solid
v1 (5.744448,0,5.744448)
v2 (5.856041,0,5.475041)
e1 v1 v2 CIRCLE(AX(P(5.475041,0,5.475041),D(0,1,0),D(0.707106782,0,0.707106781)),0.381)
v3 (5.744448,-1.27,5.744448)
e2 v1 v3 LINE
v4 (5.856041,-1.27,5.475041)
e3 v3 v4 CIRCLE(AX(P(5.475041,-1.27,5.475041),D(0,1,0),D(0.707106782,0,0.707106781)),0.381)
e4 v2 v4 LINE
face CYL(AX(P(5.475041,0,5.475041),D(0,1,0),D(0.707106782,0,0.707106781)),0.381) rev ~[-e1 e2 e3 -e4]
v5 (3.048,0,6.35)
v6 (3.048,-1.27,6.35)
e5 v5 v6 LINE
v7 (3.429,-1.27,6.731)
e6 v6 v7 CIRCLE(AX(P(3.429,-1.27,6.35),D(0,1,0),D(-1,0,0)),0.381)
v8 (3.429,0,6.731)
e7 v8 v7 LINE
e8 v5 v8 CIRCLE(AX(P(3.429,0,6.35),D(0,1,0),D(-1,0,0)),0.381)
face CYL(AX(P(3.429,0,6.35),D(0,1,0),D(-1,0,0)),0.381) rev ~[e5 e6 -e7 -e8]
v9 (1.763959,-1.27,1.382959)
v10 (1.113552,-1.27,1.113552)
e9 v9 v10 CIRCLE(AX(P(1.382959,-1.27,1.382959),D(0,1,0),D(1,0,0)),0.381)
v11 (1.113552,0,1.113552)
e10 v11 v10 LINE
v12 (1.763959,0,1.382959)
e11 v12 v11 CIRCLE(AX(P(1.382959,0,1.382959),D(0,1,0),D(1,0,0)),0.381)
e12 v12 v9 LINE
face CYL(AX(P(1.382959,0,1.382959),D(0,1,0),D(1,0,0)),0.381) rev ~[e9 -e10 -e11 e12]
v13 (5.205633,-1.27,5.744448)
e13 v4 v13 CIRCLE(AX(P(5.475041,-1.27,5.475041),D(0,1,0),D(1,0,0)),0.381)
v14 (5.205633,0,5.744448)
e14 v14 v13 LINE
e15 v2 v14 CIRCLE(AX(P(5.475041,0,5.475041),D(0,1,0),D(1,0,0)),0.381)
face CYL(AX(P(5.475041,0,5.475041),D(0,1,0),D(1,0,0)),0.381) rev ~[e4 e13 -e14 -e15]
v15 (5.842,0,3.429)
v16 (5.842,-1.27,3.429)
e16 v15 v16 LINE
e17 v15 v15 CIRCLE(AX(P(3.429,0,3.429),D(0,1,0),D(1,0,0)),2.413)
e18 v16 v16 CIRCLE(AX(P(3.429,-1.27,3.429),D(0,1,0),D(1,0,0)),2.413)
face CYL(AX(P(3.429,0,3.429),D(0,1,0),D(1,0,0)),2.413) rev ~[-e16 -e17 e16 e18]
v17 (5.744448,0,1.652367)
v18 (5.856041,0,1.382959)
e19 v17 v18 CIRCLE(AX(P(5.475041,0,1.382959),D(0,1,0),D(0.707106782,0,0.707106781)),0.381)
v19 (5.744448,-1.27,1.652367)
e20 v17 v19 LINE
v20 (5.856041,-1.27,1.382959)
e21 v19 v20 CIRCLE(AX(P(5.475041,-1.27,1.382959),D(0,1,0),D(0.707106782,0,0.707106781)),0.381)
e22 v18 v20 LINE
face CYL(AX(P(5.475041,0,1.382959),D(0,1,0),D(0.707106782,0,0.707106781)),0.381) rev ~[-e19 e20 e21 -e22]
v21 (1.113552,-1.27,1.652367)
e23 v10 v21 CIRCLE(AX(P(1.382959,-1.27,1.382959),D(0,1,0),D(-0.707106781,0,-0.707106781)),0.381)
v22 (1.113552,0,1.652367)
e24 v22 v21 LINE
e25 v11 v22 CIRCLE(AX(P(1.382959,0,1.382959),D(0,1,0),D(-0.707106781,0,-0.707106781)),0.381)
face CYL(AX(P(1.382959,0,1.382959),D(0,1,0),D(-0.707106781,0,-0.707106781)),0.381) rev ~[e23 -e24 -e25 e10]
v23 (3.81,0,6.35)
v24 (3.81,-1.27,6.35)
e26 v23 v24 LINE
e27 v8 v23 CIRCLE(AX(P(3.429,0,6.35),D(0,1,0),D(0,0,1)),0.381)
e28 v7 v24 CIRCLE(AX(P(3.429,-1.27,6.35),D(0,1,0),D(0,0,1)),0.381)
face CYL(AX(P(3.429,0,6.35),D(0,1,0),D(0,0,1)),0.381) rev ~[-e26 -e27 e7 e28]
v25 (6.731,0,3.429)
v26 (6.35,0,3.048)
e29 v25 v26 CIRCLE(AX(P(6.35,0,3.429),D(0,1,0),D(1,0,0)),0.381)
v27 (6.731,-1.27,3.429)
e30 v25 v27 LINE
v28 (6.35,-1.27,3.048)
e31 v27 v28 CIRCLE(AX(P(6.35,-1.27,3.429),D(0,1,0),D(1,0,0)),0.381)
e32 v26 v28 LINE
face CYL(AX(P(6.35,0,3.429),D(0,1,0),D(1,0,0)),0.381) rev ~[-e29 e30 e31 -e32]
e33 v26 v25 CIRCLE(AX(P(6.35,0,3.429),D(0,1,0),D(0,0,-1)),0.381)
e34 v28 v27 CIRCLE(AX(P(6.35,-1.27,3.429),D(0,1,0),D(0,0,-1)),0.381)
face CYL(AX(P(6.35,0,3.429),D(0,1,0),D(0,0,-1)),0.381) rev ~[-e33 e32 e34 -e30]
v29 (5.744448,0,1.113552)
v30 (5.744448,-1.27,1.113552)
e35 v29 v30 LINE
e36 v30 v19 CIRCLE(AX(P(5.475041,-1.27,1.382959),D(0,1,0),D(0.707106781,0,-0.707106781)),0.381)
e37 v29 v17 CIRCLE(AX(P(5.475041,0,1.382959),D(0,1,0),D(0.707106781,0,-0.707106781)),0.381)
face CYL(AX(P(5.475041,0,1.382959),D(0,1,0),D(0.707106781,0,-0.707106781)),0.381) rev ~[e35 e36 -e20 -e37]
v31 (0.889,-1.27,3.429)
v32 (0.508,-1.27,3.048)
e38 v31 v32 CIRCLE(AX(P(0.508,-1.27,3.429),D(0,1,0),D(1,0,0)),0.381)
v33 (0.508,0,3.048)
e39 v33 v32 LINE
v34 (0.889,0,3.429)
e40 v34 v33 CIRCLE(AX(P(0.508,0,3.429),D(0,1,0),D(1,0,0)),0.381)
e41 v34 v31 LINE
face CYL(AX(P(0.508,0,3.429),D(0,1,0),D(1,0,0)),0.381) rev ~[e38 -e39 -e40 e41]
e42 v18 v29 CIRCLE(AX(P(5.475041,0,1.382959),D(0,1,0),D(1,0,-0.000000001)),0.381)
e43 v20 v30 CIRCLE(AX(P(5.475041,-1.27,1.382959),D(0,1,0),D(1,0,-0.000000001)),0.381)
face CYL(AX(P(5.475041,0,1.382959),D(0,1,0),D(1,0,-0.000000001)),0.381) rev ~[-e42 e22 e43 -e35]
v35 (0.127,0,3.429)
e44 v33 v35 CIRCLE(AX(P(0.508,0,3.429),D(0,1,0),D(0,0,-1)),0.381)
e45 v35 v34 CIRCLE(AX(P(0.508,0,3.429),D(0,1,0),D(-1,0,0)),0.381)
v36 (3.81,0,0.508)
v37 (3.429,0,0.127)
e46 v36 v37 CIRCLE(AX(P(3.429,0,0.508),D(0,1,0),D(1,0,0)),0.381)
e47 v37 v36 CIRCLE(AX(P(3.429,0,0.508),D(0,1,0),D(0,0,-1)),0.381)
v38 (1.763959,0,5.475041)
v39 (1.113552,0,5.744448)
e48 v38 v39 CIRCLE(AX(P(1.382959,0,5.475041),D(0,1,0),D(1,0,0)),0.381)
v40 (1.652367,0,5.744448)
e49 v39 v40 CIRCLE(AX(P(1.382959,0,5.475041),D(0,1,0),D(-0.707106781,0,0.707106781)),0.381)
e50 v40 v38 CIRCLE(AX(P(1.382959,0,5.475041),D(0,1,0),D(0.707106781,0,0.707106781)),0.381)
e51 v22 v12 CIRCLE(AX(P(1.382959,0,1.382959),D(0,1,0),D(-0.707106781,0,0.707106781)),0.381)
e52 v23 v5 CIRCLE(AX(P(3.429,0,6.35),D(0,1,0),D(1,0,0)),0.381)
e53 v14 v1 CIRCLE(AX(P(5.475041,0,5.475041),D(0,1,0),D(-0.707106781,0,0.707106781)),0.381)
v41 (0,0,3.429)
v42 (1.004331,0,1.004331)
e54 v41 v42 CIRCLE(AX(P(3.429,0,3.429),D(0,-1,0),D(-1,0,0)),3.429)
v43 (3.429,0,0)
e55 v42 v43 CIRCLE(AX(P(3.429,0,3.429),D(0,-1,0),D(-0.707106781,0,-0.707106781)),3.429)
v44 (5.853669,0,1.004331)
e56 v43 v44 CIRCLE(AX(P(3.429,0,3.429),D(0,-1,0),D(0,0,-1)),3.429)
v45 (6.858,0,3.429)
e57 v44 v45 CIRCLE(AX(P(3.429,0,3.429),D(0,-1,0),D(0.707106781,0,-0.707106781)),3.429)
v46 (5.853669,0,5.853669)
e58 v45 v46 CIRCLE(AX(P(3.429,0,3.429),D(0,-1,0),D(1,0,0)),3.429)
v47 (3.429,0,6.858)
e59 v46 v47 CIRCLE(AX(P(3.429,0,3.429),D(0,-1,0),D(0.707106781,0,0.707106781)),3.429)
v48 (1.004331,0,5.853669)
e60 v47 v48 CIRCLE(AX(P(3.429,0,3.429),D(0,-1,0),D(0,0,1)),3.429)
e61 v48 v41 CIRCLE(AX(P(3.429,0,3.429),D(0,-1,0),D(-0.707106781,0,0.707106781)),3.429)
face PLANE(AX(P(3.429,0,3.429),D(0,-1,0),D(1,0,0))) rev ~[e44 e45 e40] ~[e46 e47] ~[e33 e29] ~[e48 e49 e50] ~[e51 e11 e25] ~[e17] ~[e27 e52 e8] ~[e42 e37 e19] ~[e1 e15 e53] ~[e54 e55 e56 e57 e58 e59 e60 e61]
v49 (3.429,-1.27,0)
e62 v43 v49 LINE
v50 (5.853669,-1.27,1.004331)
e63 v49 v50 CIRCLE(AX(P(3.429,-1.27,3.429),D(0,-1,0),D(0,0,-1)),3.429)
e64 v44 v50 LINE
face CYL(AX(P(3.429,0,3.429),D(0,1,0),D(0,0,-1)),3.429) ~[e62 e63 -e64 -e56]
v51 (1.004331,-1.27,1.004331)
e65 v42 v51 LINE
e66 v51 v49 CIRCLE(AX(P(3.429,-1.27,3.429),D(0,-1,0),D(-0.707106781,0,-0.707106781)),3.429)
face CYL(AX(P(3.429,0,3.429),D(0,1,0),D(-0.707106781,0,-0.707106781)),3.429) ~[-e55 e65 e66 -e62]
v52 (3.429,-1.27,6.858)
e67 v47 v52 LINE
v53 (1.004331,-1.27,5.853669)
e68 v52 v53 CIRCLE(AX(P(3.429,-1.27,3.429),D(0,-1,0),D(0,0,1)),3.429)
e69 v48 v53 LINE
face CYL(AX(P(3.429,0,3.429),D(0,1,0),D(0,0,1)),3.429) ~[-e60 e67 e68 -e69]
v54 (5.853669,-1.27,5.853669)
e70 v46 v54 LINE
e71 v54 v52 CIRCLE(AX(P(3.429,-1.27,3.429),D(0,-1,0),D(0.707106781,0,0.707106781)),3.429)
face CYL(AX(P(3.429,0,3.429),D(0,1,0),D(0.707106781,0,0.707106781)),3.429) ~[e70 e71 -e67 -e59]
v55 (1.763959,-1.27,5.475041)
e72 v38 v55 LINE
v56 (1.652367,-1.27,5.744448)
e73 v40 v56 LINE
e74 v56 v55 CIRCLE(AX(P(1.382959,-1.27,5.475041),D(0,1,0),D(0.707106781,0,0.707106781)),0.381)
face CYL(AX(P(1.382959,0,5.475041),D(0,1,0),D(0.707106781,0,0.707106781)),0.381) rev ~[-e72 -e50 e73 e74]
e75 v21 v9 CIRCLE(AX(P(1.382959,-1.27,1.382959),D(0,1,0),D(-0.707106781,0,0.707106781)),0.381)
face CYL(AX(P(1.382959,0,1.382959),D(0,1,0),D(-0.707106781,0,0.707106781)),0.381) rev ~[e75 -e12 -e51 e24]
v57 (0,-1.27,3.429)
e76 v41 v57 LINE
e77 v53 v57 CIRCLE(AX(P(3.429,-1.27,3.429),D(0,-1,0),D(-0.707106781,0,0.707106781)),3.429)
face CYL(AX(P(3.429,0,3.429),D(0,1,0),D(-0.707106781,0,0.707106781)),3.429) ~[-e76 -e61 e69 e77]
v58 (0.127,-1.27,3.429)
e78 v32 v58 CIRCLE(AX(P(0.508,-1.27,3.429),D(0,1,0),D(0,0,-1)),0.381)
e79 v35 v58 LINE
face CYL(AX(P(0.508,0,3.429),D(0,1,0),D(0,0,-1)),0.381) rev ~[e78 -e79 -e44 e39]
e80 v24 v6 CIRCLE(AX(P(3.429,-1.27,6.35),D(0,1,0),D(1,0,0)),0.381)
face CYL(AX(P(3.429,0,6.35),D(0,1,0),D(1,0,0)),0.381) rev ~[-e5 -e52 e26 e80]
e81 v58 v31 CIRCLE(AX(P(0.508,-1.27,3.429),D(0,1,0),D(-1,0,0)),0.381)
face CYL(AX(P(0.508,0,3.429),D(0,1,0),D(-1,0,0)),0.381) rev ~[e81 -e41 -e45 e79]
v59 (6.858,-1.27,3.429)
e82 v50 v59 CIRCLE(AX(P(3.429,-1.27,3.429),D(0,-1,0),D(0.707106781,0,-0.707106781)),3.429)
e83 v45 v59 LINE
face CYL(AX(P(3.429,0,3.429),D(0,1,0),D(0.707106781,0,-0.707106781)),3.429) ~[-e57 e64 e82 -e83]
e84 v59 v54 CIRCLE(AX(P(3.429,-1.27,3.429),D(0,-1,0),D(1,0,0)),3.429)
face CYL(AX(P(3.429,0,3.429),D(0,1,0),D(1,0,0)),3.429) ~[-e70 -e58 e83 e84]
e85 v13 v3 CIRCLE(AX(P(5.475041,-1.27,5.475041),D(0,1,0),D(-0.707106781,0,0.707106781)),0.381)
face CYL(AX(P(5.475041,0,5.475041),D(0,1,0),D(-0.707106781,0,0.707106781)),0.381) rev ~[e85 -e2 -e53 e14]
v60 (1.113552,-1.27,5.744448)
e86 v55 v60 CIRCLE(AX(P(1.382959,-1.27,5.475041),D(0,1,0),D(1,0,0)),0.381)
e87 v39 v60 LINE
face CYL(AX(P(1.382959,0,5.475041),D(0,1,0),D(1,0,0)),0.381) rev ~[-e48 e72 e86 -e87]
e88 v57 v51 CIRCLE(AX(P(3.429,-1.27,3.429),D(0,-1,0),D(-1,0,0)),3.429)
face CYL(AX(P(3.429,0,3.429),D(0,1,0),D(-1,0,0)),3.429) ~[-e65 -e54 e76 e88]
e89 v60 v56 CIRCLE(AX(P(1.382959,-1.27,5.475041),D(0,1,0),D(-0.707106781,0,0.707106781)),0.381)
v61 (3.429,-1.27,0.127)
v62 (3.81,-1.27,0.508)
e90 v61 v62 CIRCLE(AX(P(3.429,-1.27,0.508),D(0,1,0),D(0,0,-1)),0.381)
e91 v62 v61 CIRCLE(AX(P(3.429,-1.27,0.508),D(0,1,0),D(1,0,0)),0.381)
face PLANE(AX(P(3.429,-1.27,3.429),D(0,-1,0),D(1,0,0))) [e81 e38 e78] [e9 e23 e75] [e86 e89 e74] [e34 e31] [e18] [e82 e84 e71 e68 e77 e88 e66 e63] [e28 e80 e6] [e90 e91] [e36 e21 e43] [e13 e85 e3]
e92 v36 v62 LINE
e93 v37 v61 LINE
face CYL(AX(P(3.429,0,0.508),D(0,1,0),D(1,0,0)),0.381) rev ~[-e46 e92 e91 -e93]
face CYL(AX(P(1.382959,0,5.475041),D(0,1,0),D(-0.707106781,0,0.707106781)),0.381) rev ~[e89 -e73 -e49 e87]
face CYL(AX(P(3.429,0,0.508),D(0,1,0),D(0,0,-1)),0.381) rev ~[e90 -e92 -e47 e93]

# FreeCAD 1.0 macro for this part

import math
import FreeCAD as App
import Part
import Sketcher
from FreeCAD import Vector
Q = App.Units.Quantity

doc = App.newDocument("Part")
body = doc.addObject("PartDesign::Body", "Body")

sketch1 = body.newObject("Sketcher::SketchObject", "Sketch")
sketch1.AttachmentSupport = (doc.getObject("XZ_Plane"), [""])
sketch1.MapMode = "FlatFace"
sketch1.addGeometry([
    Part.ArcOfCircle(Part.Circle(Vector(3.43, 3.43, 0), Vector(0, 0, 1), 3.43), math.radians(-45), math.radians(0)),
    Part.ArcOfCircle(Part.Circle(Vector(3.43, 3.43, 0), Vector(0, 0, 1), 3.43), math.radians(0), math.radians(45)),
    Part.ArcOfCircle(Part.Circle(Vector(3.43, 3.43, 0), Vector(0, 0, 1), 3.43), math.radians(45), math.radians(90)),
    Part.ArcOfCircle(Part.Circle(Vector(3.43, 3.43, 0), Vector(0, 0, 1), 3.43), math.radians(90), math.radians(135)),
    Part.ArcOfCircle(Part.Circle(Vector(3.43, 3.43, 0), Vector(0, 0, 1), 3.43), math.radians(135), math.radians(180)),
    Part.ArcOfCircle(Part.Circle(Vector(3.43, 3.43, 0), Vector(0, 0, 1), 3.43), math.radians(180), math.radians(225)),
    Part.ArcOfCircle(Part.Circle(Vector(3.43, 3.43, 0), Vector(0, 0, 1), 3.43), math.radians(-135), math.radians(-90)),
    Part.ArcOfCircle(Part.Circle(Vector(3.43, 3.43, 0), Vector(0, 0, 1), 3.43), math.radians(-90), math.radians(-45)),
    Part.ArcOfCircle(Part.Circle(Vector(1.38, 1.38, 0), Vector(0, 0, 1), 0.38), math.radians(0), math.radians(135)),
    Part.ArcOfCircle(Part.Circle(Vector(1.38, 1.38, 0), Vector(0, 0, 1), 0.38), math.radians(-135), math.radians(0)),
    Part.ArcOfCircle(Part.Circle(Vector(1.38, 1.38, 0), Vector(0, 0, 1), 0.38), math.radians(135), math.radians(225)),
    Part.ArcOfCircle(Part.Circle(Vector(3.43, 0.51, 0), Vector(0, 0, 1), 0.38), math.radians(0), math.radians(270)),
    Part.ArcOfCircle(Part.Circle(Vector(3.43, 0.51, 0), Vector(0, 0, 1), 0.38), math.radians(-90), math.radians(0)),
    Part.ArcOfCircle(Part.Circle(Vector(5.48, 1.38, 0), Vector(0, 0, 1), 0.38), math.radians(0), math.radians(45)),
    Part.ArcOfCircle(Part.Circle(Vector(5.48, 1.38, 0), Vector(0, 0, 1), 0.38), math.radians(-45), math.radians(0)),
    Part.ArcOfCircle(Part.Circle(Vector(5.48, 1.38, 0), Vector(0, 0, 1), 0.38), math.radians(45), math.radians(315)),
    Part.ArcOfCircle(Part.Circle(Vector(6.35, 3.43, 0), Vector(0, 0, 1), 0.38), math.radians(-90), math.radians(0)),
    Part.ArcOfCircle(Part.Circle(Vector(6.35, 3.43, 0), Vector(0, 0, 1), 0.38), math.radians(0), math.radians(270)),
    Part.ArcOfCircle(Part.Circle(Vector(0.51, 3.43, 0), Vector(0, 0, 1), 0.38), math.radians(-90), math.radians(0)),
    Part.ArcOfCircle(Part.Circle(Vector(0.51, 3.43, 0), Vector(0, 0, 1), 0.38), math.radians(180), math.radians(270)),
    Part.ArcOfCircle(Part.Circle(Vector(0.51, 3.43, 0), Vector(0, 0, 1), 0.38), math.radians(0), math.radians(180)),
    Part.ArcOfCircle(Part.Circle(Vector(1.38, 5.48, 0), Vector(0, 0, 1), 0.38), math.radians(0), math.radians(45)),
    Part.ArcOfCircle(Part.Circle(Vector(1.38, 5.48, 0), Vector(0, 0, 1), 0.38), math.radians(135), math.radians(360)),
    Part.ArcOfCircle(Part.Circle(Vector(1.38, 5.48, 0), Vector(0, 0, 1), 0.38), math.radians(45), math.radians(135)),
    Part.Circle(Vector(3.43, 3.43, 0), Vector(0, 0, 1), 2.41),
    Part.ArcOfCircle(Part.Circle(Vector(3.43, 6.35, 0), Vector(0, 0, 1), 0.38), math.radians(180), math.radians(360)),
    Part.ArcOfCircle(Part.Circle(Vector(3.43, 6.35, 0), Vector(0, 0, 1), 0.38), math.radians(90), math.radians(180)),
    Part.ArcOfCircle(Part.Circle(Vector(3.43, 6.35, 0), Vector(0, 0, 1), 0.38), math.radians(0), math.radians(90)),
    Part.ArcOfCircle(Part.Circle(Vector(5.48, 5.48, 0), Vector(0, 0, 1), 0.38), math.radians(135), math.radians(360)),
    Part.ArcOfCircle(Part.Circle(Vector(5.48, 5.48, 0), Vector(0, 0, 1), 0.38), math.radians(45), math.radians(135)),
    Part.ArcOfCircle(Part.Circle(Vector(5.48, 5.48, 0), Vector(0, 0, 1), 0.38), math.radians(0), math.radians(45)),
], False)
sketch1.addConstraint([
    Sketcher.Constraint("Tangent", 0, 2, 1, 1),
    Sketcher.Constraint("Tangent", 1, 2, 2, 1),
    Sketcher.Constraint("Tangent", 2, 2, 3, 1),
    Sketcher.Constraint("Tangent", 3, 2, 4, 1),
    Sketcher.Constraint("Tangent", 4, 2, 5, 1),
    Sketcher.Constraint("Tangent", 5, 2, 6, 1),
    Sketcher.Constraint("Tangent", 6, 2, 7, 1),
    Sketcher.Constraint("Tangent", 7, 2, 0, 1),
    Sketcher.Constraint("Tangent", 8, 1, 9, 2),
    Sketcher.Constraint("Tangent", 9, 1, 10, 2),
    Sketcher.Constraint("Tangent", 10, 1, 8, 2),
    Sketcher.Constraint("Tangent", 11, 1, 12, 2),
    Sketcher.Constraint("Coincident", 12, 1, 11, 2),
    Sketcher.Constraint("Tangent", 13, 1, 14, 2),
    Sketcher.Constraint("Tangent", 14, 1, 15, 2),
    Sketcher.Constraint("Tangent", 15, 1, 13, 2),
    Sketcher.Constraint("Tangent", 16, 1, 17, 2),
    Sketcher.Constraint("Coincident", 17, 1, 16, 2),
    Sketcher.Constraint("Tangent", 18, 1, 19, 2),
    Sketcher.Constraint("Tangent", 19, 1, 20, 2),
    Sketcher.Constraint("Tangent", 20, 1, 18, 2),
    Sketcher.Constraint("Tangent", 21, 1, 22, 2),
    Sketcher.Constraint("Tangent", 22, 1, 23, 2),
    Sketcher.Constraint("Tangent", 23, 1, 21, 2),
    Sketcher.Constraint("Tangent", 25, 1, 26, 2),
    Sketcher.Constraint("Tangent", 26, 1, 27, 2),
    Sketcher.Constraint("Tangent", 27, 1, 25, 2),
    Sketcher.Constraint("Tangent", 28, 1, 29, 2),
    Sketcher.Constraint("Tangent", 29, 1, 30, 2),
    Sketcher.Constraint("Tangent", 30, 1, 28, 2),
    Sketcher.Constraint("Coincident", 2, 3, 0, 3),
    Sketcher.Constraint("Coincident", 4, 3, 0, 3),
    Sketcher.Constraint("Coincident", 24, 3, 0, 3),
    Sketcher.Constraint("Equal", 4, 5),
    Sketcher.Constraint("Equal", 10, 11),
    Sketcher.Constraint("Equal", 12, 13),
    Sketcher.Constraint("Equal", 15, 16),
    Sketcher.Constraint("Equal", 17, 18),
    Sketcher.Constraint("Equal", 20, 21),
    Sketcher.Constraint("Equal", 23, 25),
    Sketcher.Constraint("Equal", 27, 28),
    Sketcher.Constraint("PointOnObject", 4, 2, -2),
    Sketcher.Constraint("PointOnObject", 6, 2, -1),
    Sketcher.Constraint("Horizontal", 10, 3, 13, 3),
    Sketcher.Constraint("Horizontal", 7, 3, 16, 3),
    Sketcher.Constraint("Horizontal", 17, 3, 18, 3),
    Sketcher.Constraint("Horizontal", 23, 3, 28, 3),
    Sketcher.Constraint("Horizontal", 24, 3, 0, 2),
    Sketcher.Constraint("Horizontal", 1, 2, 3, 2),
    Sketcher.Constraint("Horizontal", 0, 2, 4, 2),
    Sketcher.Constraint("Horizontal", 5, 2, 7, 2),
    Sketcher.Constraint("Horizontal", 15, 3, 8, 1),
    Sketcher.Constraint("Horizontal", 12, 3, 11, 1),
    Sketcher.Constraint("Horizontal", 8, 1, 13, 1),
    Sketcher.Constraint("Horizontal", 9, 1, 14, 1),
    Sketcher.Constraint("Horizontal", 10, 1, 15, 1),
    Sketcher.Constraint("Horizontal", 4, 2, 17, 1),
    Sketcher.Constraint("Horizontal", 17, 1, 19, 1),
    Sketcher.Constraint("Horizontal", 19, 1, 20, 1),
    Sketcher.Constraint("Horizontal", 30, 3, 21, 1),
    Sketcher.Constraint("Horizontal", 22, 1, 23, 1),
    Sketcher.Constraint("Horizontal", 27, 3, 25, 1),
    Sketcher.Constraint("Horizontal", 25, 1, 27, 1),
    Sketcher.Constraint("Horizontal", 23, 1, 28, 1),
    Sketcher.Constraint("Horizontal", 28, 1, 29, 1),
    Sketcher.Constraint("Horizontal", 21, 1, 30, 1),
    Sketcher.Constraint("Vertical", 7, 3, 11, 3),
    Sketcher.Constraint("Vertical", 10, 3, 21, 3),
    Sketcher.Constraint("Vertical", 24, 3, 25, 3),
    Sketcher.Constraint("Vertical", 15, 3, 28, 3),
    Sketcher.Constraint("Vertical", 27, 3, 2, 2),
    Sketcher.Constraint("Vertical", 3, 2, 5, 2),
    Sketcher.Constraint("Vertical", 2, 2, 6, 2),
    Sketcher.Constraint("Vertical", 9, 1, 10, 1),
    Sketcher.Constraint("Vertical", 6, 2, 12, 1),
    Sketcher.Constraint("Vertical", 17, 3, 16, 1),
    Sketcher.Constraint("Vertical", 20, 3, 18, 1),
    Sketcher.Constraint("Vertical", 10, 1, 22, 1),
    Sketcher.Constraint("Vertical", 12, 1, 26, 1),
    Sketcher.Constraint("Diameter", 24, Q("0.19 in")),
    Sketcher.Constraint("Radius", 0, Q("0.135 in")),
    Sketcher.Constraint("Radius", 8, Q("0.015 in")),
    Sketcher.Constraint("DistanceY", -1, 1, 11, 3, Q("0.02 in")),
    Sketcher.Constraint("DistanceX", -1, 1, 16, 3, Q("0.25 in")),
    Sketcher.Constraint("DistanceX", -1, 1, 18, 3, Q("0.02 in")),
    Sketcher.Constraint("DistanceY", -1, 1, 25, 3, Q("0.25 in")),
    Sketcher.Constraint("DistanceX", -1, 1, 8, 3, 1.382959),
    Sketcher.Constraint("DistanceY", -1, 1, 8, 3, 1.382959),
    Sketcher.Constraint("DistanceX", -1, 1, 13, 3, 5.475041),
    Sketcher.Constraint("DistanceY", -1, 1, 21, 3, 5.475041),
    Sketcher.Constraint("DistanceX", -1, 1, 1, 2, 5.853669),
    Sketcher.Constraint("DistanceX", -1, 1, 9, 1, 1.113552),
])
pad1 = body.newObject("PartDesign::Pad", "Pad")
pad1.Profile = sketch1
pad1.Length = Q("0.05 in")

doc.recompute()
